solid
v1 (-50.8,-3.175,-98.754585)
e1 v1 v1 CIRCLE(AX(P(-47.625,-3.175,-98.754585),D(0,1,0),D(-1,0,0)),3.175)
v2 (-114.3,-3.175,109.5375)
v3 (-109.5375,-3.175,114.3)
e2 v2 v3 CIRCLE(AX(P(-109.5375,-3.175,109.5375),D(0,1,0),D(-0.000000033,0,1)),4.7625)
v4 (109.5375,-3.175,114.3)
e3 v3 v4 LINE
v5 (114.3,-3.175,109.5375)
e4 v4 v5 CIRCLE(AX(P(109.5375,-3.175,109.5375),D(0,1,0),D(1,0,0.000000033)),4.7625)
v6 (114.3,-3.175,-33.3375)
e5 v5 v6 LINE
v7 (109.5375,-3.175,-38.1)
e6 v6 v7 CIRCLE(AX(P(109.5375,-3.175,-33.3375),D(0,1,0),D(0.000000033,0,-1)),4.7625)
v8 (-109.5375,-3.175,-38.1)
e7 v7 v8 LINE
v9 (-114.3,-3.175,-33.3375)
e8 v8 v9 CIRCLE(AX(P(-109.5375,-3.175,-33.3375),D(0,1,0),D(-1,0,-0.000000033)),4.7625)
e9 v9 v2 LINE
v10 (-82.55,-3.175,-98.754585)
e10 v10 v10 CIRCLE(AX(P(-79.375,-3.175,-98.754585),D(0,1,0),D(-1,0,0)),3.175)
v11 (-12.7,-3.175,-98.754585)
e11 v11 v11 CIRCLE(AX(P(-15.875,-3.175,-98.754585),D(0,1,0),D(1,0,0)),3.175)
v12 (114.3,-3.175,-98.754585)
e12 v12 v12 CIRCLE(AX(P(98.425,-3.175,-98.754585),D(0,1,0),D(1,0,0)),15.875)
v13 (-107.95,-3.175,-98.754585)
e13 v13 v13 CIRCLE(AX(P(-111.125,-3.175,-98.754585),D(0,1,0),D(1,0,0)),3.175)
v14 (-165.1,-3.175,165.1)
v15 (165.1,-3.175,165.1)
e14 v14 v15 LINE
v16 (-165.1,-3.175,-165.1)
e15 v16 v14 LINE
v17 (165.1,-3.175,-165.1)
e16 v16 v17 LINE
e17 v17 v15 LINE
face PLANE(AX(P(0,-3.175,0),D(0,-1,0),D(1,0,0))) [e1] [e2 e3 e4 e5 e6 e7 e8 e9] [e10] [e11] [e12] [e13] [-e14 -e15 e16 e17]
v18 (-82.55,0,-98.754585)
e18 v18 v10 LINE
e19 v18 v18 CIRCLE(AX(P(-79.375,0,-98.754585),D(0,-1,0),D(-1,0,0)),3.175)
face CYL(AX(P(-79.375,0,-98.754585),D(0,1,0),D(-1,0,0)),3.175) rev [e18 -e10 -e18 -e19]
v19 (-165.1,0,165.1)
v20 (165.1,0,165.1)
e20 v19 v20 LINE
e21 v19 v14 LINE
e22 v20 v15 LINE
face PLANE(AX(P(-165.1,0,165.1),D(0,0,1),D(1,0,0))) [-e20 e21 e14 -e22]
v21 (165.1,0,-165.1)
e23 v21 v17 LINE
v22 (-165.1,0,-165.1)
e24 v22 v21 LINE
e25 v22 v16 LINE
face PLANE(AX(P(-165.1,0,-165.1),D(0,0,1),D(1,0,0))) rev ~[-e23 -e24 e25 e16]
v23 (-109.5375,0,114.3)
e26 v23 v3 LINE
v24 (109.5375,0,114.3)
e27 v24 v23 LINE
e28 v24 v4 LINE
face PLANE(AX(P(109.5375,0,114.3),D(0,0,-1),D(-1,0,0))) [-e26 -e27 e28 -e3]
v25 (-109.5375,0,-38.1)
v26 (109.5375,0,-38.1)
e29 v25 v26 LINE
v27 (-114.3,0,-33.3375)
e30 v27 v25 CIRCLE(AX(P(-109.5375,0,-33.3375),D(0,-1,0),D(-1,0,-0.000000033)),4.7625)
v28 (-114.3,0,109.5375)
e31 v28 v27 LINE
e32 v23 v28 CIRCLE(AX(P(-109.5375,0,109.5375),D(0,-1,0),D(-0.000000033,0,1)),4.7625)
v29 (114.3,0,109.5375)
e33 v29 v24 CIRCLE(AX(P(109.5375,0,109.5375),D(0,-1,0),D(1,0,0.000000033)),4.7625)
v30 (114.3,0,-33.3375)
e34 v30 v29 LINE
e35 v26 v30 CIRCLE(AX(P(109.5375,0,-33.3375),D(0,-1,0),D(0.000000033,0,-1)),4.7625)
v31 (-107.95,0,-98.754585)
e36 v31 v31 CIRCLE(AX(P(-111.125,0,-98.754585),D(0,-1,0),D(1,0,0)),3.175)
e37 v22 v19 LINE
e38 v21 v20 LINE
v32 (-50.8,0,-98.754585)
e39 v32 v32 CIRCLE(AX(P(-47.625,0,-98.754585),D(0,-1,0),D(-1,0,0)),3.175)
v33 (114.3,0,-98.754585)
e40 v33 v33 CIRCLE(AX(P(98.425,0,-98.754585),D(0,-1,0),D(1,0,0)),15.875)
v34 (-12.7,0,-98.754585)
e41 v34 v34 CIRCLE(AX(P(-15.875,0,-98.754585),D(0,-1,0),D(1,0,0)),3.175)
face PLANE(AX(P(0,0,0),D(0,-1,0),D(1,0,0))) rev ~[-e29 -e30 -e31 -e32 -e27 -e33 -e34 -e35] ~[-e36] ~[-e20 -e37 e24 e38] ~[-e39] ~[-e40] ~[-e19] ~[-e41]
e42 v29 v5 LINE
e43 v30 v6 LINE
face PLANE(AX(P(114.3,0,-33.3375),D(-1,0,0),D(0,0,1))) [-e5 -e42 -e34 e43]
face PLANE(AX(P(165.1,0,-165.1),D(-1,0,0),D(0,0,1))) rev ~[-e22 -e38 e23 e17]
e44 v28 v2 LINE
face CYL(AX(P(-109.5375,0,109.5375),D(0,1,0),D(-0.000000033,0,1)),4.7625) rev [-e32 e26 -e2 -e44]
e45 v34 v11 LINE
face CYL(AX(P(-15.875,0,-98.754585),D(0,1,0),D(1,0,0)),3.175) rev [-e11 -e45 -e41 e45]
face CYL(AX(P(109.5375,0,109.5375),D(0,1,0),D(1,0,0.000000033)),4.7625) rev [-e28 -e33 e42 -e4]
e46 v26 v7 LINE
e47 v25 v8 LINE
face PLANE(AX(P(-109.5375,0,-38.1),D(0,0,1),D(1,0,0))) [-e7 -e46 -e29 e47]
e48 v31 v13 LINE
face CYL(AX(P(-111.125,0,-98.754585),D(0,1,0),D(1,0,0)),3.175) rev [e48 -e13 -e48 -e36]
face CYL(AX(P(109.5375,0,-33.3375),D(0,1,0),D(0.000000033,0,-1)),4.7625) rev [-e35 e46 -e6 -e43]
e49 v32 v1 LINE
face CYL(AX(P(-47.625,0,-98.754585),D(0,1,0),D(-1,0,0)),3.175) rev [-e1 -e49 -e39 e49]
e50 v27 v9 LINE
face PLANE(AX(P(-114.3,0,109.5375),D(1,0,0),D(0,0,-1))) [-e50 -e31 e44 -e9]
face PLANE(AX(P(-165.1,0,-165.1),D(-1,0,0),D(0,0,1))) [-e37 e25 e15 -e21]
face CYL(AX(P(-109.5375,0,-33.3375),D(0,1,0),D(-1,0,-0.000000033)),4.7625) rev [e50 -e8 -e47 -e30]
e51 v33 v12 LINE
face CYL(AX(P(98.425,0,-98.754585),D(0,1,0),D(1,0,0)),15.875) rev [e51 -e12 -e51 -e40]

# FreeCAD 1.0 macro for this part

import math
import FreeCAD as App
import Part
import Sketcher

V = App.Vector
Q = App.Units.Quantity


def add_polygon(sketch, points):
    """Adds a closed chain of lines whose ends are joined by coincident constraints."""
    first, n = sketch.GeometryCount, len(points)
    for a, b in zip(points, points[1:] + points[:1]):
        sketch.addGeometry(Part.LineSegment(App.Vector(*a, 0), App.Vector(*b, 0)), False)
    for i in range(n):
        sketch.addConstraint(Sketcher.Constraint("Coincident", first + i, 2, first + (i + 1) % n, 1))

doc = App.newDocument("Part")
params = doc.addObject("Spreadsheet::Sheet", "Params")
for row, (alias, value) in enumerate([
    ("sketch1_width", "13 in"),
    ("pad1_length", "0.125 in"),
    ("sketch2_diameter", "1.25 in"),
    ("sketch2_diameter2", "0.25 in"),
    ("sketch2_radius", "0.1875 in"),
    ("pocket1_length", "1 in"),
], start=1):
    params.set(f"A{row}", alias)
    params.set(f"B{row}", "=" + value)
    params.setAlias(f"B{row}", alias)

body = doc.addObject("PartDesign::Body", "Body")

sketch1 = body.newObject("Sketcher::SketchObject", "Sketch")
sketch1.AttachmentSupport = (doc.getObject("XZ_Plane"), [""])
sketch1.MapMode = "FlatFace"
add_polygon(sketch1, [(-165, 165), (-165, -165), (165, -165), (165, 165)])
sketch1.addConstraint([
    Sketcher.Constraint("Vertical", 0),
    Sketcher.Constraint("Horizontal", 1),
    Sketcher.Constraint("Vertical", 2),
    Sketcher.Constraint("Horizontal", 3),
    Sketcher.Constraint("Symmetric", 0, 2, 2, 2, -1, 1),
    Sketcher.Constraint("Equal", 3, 0),
    Sketcher.Constraint("DistanceX", 1, 1, 1, 2, Q("13 in")),
])
sketch1.setExpression("Constraints[10]", "Params.sketch1_width")
pad1 = body.newObject("PartDesign::Pad", "Pad")
pad1.Profile = sketch1
pad1.setExpression("Length", "Params.pad1_length")

sketch2 = body.newObject("Sketcher::SketchObject", "Sketch001")
sketch2.AttachmentSupport = (doc.getObject("XZ_Plane"), [""])
sketch2.MapMode = "FlatFace"
sketch2.addGeometry([
    Part.ArcOfCircle(Part.Circle(V(-109.5, -33.3, 0), V(0, 0, 1), 4.8), math.radians(-180), math.radians(-90)),
    Part.LineSegment(V(-109.5, -38.1, 0), V(109.5, -38.1, 0)),
    Part.ArcOfCircle(Part.Circle(V(109.5, -33.3, 0), V(0, 0, 1), 4.8), math.radians(-90), math.radians(0)),
    Part.LineSegment(V(114.3, -33.3, 0), V(114.3, 109.5, 0)),
    Part.ArcOfCircle(Part.Circle(V(109.5, 109.5, 0), V(0, 0, 1), 4.8), math.radians(0), math.radians(90)),
    Part.LineSegment(V(109.5, 114.3, 0), V(-109.5, 114.3, 0)),
    Part.ArcOfCircle(Part.Circle(V(-109.5, 109.5, 0), V(0, 0, 1), 4.8), math.radians(90), math.radians(180)),
    Part.LineSegment(V(-114.3, 109.5, 0), V(-114.3, -33.3, 0)),
    Part.Circle(V(98.4, -98.8, 0), V(0, 0, 1), 15.9),
    Part.Circle(V(-15.9, -98.8, 0), V(0, 0, 1), 3.2),
    Part.Circle(V(-47.6, -98.8, 0), V(0, 0, 1), 3.2),
    Part.Circle(V(-79.4, -98.8, 0), V(0, 0, 1), 3.2),
    Part.Circle(V(-111.1, -98.8, 0), V(0, 0, 1), 3.2),
], False)
sketch2.addConstraint([
    Sketcher.Constraint("Tangent", 0, 2, 1, 1),
    Sketcher.Constraint("Tangent", 1, 2, 2, 1),
    Sketcher.Constraint("Tangent", 2, 2, 3, 1),
    Sketcher.Constraint("Tangent", 3, 2, 4, 1),
    Sketcher.Constraint("Tangent", 4, 2, 5, 1),
    Sketcher.Constraint("Tangent", 5, 2, 6, 1),
    Sketcher.Constraint("Tangent", 6, 2, 7, 1),
    Sketcher.Constraint("Tangent", 7, 2, 0, 1),
    Sketcher.Constraint("Horizontal", 1),
    Sketcher.Constraint("Vertical", 3),
    Sketcher.Constraint("Horizontal", 5),
    Sketcher.Constraint("Vertical", 7),
    Sketcher.Constraint("Equal", 0, 2),
    Sketcher.Constraint("Equal", 2, 4),
    Sketcher.Constraint("Equal", 4, 6),
    Sketcher.Constraint("Equal", 9, 10),
    Sketcher.Constraint("Equal", 10, 11),
    Sketcher.Constraint("Equal", 11, 12),
    Sketcher.Constraint("Horizontal", 8, 3, 9, 3),
    Sketcher.Constraint("Horizontal", 9, 3, 10, 3),
    Sketcher.Constraint("Horizontal", 10, 3, 11, 3),
    Sketcher.Constraint("Horizontal", 11, 3, 12, 3),
    Sketcher.Constraint("Diameter", 8, Q("1.25 in")),
    Sketcher.Constraint("Diameter", 9, Q("0.25 in")),
    Sketcher.Constraint("Radius", 0, Q("0.1875 in")),
    Sketcher.Constraint("DistanceX", 11, 3, 8, 3, Q("7 in")),
    Sketcher.Constraint("DistanceY", 1, 2, 4, 2, Q("6 in")),
    Sketcher.Constraint("DistanceY", 0, 2, -1, 1, Q("1.5 in")),
    Sketcher.Constraint("DistanceX", -1, 1, 2, 2, Q("4.5 in")),
    Sketcher.Constraint("DistanceX", 6, 2, -1, 1, Q("4.5 in")),
    Sketcher.Constraint("DistanceX", 9, 3, 8, 3, Q("4.5 in")),
    Sketcher.Constraint("DistanceX", 12, 3, 10, 3, Q("2.5 in")),
    Sketcher.Constraint("DistanceX", 10, 3, 9, 3, Q("1.25 in")),
    Sketcher.Constraint("DistanceX", -1, 1, 8, 3, Q("3.875 in")),
    Sketcher.Constraint("DistanceY", 8, 3, -1, 1, 98.754585),
])
sketch2.setExpression("Constraints[22]", "Params.sketch2_diameter")
sketch2.setExpression("Constraints[23]", "Params.sketch2_diameter2")
sketch2.setExpression("Constraints[24]", "Params.sketch2_radius")
pocket1 = body.newObject("PartDesign::Pocket", "Pocket")
pocket1.Profile = sketch2
pocket1.setExpression("Length", "Params.pocket1_length")
pocket1.Reversed = True

doc.recompute()
